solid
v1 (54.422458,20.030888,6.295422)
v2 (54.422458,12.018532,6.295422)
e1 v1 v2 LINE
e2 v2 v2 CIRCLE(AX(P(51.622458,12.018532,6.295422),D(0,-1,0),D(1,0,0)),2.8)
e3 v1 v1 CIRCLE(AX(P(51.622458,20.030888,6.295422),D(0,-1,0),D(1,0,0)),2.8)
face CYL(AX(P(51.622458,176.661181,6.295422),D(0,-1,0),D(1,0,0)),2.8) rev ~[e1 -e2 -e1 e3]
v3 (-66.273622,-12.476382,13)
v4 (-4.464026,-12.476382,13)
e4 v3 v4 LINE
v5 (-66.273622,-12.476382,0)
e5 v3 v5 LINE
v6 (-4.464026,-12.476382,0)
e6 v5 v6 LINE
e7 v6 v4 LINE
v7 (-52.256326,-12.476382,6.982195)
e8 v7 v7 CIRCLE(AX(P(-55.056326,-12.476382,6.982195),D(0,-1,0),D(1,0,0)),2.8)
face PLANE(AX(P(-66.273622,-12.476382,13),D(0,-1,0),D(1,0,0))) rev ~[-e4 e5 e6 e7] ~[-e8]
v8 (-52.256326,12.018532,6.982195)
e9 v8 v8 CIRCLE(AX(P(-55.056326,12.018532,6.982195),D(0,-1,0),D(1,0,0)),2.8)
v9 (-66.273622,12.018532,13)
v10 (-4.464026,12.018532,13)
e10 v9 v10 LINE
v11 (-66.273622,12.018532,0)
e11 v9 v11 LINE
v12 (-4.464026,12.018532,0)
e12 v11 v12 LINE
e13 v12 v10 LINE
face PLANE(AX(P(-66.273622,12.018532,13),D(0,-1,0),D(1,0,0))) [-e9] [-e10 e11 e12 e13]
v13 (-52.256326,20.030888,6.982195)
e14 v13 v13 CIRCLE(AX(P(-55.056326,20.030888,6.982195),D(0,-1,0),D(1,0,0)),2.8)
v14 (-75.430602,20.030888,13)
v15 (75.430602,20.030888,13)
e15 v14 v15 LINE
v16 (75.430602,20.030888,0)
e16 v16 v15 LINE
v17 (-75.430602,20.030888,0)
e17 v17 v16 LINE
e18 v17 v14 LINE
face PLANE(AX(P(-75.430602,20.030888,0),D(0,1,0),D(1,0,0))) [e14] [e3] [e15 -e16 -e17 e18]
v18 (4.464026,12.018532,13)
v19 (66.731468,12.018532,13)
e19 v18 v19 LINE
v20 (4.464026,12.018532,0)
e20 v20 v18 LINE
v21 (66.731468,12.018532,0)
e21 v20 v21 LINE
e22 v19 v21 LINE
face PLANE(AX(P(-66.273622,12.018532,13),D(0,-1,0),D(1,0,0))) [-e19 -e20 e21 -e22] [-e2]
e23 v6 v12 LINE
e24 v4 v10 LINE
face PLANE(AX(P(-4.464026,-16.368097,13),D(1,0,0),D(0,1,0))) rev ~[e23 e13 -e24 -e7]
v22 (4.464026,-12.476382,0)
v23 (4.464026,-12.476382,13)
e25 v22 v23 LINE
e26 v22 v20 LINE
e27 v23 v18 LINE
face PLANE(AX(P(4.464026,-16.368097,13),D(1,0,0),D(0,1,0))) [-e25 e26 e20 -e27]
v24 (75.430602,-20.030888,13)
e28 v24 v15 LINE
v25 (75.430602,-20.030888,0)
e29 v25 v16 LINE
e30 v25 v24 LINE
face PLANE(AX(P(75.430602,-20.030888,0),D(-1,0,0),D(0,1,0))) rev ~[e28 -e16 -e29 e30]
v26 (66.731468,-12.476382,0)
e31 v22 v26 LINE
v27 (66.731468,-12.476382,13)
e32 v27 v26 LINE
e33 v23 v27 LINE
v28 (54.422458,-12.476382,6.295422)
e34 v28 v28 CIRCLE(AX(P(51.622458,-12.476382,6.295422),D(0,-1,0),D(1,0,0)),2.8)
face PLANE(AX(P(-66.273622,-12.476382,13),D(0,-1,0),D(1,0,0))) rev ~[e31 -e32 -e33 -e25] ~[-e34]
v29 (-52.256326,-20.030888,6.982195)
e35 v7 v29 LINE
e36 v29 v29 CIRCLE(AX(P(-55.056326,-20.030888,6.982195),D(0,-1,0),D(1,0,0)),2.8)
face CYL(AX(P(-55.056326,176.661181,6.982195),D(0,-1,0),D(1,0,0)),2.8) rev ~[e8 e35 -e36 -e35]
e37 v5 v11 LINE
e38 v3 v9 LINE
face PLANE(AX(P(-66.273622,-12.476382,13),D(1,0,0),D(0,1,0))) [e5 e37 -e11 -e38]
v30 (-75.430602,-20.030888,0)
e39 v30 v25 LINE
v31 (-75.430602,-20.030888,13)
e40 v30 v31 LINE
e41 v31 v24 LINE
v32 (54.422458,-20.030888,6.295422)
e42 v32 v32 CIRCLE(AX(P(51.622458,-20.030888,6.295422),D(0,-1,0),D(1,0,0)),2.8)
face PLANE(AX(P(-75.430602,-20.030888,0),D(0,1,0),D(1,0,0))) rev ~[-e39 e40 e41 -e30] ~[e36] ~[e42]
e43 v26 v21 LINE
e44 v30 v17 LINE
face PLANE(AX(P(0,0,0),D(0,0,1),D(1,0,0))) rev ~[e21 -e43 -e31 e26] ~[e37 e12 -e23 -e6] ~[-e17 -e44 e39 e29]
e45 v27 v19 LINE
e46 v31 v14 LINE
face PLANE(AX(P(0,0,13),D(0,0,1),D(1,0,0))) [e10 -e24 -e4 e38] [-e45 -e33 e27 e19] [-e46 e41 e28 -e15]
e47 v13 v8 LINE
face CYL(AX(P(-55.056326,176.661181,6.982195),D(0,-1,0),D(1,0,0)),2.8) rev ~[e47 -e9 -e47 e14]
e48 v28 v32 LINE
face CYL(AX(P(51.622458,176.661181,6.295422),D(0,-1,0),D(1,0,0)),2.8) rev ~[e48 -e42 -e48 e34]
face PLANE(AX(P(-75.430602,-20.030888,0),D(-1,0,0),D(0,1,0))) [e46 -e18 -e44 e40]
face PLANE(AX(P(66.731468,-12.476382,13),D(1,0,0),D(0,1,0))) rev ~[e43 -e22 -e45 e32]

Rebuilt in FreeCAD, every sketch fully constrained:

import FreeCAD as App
import Part
import Sketcher
from FreeCAD import Vector
Q = App.Units.Quantity

doc = App.newDocument("Part")
params = doc.addObject("Spreadsheet::Sheet", "Params")
for row, (alias, value) in enumerate([
    ("pad1_length", "13 mm"),
    ("pocket1_length", "25 mm"),
    ("pad2_length", "13 mm"),
    ("sketch4_diameter", "5.6 mm"),
    ("hole_diameter", "5.6 mm"),
], start=1):
    params.set(f"A{row}", alias)
    params.set(f"B{row}", "=" + value)
    params.setAlias(f"B{row}", alias)

body = doc.addObject("PartDesign::Body", "Body")

# Sketch on XY plane
sketch1 = doc.addObject("Sketcher::SketchObject", "Sketch")
body.addObject(sketch1)
sketch1.AttachmentSupport = (doc.XY_Plane, [""])
sketch1.MapMode = "FlatFace"
sketch1.addGeometry(Part.LineSegment(Vector(-75.430602, 20.030888, 0), Vector(-75.430602, -20.030888, 0)), False)
sketch1.addGeometry(Part.LineSegment(Vector(-75.430602, -20.030888, 0), Vector(75.430602, -20.030888, 0)), False)
sketch1.addGeometry(Part.LineSegment(Vector(75.430602, -20.030888, 0), Vector(75.430602, 20.030888, 0)), False)
sketch1.addGeometry(Part.LineSegment(Vector(75.430602, 20.030888, 0), Vector(-75.430602, 20.030888, 0)), False)
sketch1.addConstraint(Sketcher.Constraint("Coincident", 0, 2, 1, 1))
sketch1.addConstraint(Sketcher.Constraint("Coincident", 1, 2, 2, 1))
sketch1.addConstraint(Sketcher.Constraint("Coincident", 2, 2, 3, 1))
sketch1.addConstraint(Sketcher.Constraint("Coincident", 3, 2, 0, 1))
sketch1.addConstraint(Sketcher.Constraint("Vertical", 0))
sketch1.addConstraint(Sketcher.Constraint("Horizontal", 1))
sketch1.addConstraint(Sketcher.Constraint("Vertical", 2))
sketch1.addConstraint(Sketcher.Constraint("Horizontal", 3))
sketch1.addConstraint(Sketcher.Constraint("Symmetric", 0, 2, 2, 2, -1, 1))
sketch1.addConstraint(Sketcher.Constraint("DistanceX", 0, 2, -1, 1, Q("75.430602 mm")))
sketch1.addConstraint(Sketcher.Constraint("DistanceY", 0, 2, 0, 1, Q("40.061776 mm")))
pad1 = doc.addObject("PartDesign::Pad", "Pad")
body.addObject(pad1)
pad1.Profile = sketch1
pad1.setExpression("Length", "Params.pad1_length")

# Sketch on XY plane
sketch2 = doc.addObject("Sketcher::SketchObject", "Sketch001")
body.addObject(sketch2)
sketch2.AttachmentSupport = (doc.XY_Plane, [""])
sketch2.MapMode = "FlatFace"
sketch2.AttachmentOffset = App.Placement(Vector(0, 0, 13), App.Rotation())
sketch2.addGeometry(Part.LineSegment(Vector(-66.273622, 12.018532, 0), Vector(-66.273622, -12.476382, 0)), False)
sketch2.addGeometry(Part.LineSegment(Vector(-66.273622, -12.476382, 0), Vector(66.731468, -12.476382, 0)), False)
sketch2.addGeometry(Part.LineSegment(Vector(66.731468, -12.476382, 0), Vector(66.731468, 12.018532, 0)), False)
sketch2.addGeometry(Part.LineSegment(Vector(66.731468, 12.018532, 0), Vector(-66.273622, 12.018532, 0)), False)
sketch2.addConstraint(Sketcher.Constraint("Coincident", 0, 2, 1, 1))
sketch2.addConstraint(Sketcher.Constraint("Coincident", 1, 2, 2, 1))
sketch2.addConstraint(Sketcher.Constraint("Coincident", 2, 2, 3, 1))
sketch2.addConstraint(Sketcher.Constraint("Coincident", 3, 2, 0, 1))
sketch2.addConstraint(Sketcher.Constraint("Vertical", 0))
sketch2.addConstraint(Sketcher.Constraint("Horizontal", 1))
sketch2.addConstraint(Sketcher.Constraint("Vertical", 2))
sketch2.addConstraint(Sketcher.Constraint("Horizontal", 3))
sketch2.addConstraint(Sketcher.Constraint("DistanceX", 1, 1, 1, 2, Q("133.00509 mm")))
sketch2.addConstraint(Sketcher.Constraint("DistanceY", 0, 2, 0, 1, Q("24.494914 mm")))
sketch2.addConstraint(Sketcher.Constraint("DistanceY", 0, 2, -1, 1, Q("12.476382 mm")))
sketch2.addConstraint(Sketcher.Constraint("DistanceX", -1, 1, 1, 2, Q("66.731468 mm")))
pocket1 = doc.addObject("PartDesign::Pocket", "Pocket")
body.addObject(pocket1)
pocket1.Profile = sketch2
pocket1.setExpression("Length", "Params.pocket1_length")

# Sketch on XY plane
sketch3 = doc.addObject("Sketcher::SketchObject", "Sketch002")
body.addObject(sketch3)
sketch3.AttachmentSupport = (doc.XY_Plane, [""])
sketch3.MapMode = "FlatFace"
sketch3.AttachmentOffset = App.Placement(Vector(0, 0, 13), App.Rotation())
sketch3.addGeometry(Part.LineSegment(Vector(-4.464026, 16.368097, 0), Vector(-4.464026, -16.368097, 0)), False)
sketch3.addGeometry(Part.LineSegment(Vector(-4.464026, -16.368097, 0), Vector(4.464026, -16.368097, 0)), False)
sketch3.addGeometry(Part.LineSegment(Vector(4.464026, -16.368097, 0), Vector(4.464026, 16.368097, 0)), False)
sketch3.addGeometry(Part.LineSegment(Vector(4.464026, 16.368097, 0), Vector(-4.464026, 16.368097, 0)), False)
sketch3.addConstraint(Sketcher.Constraint("Coincident", 0, 2, 1, 1))
sketch3.addConstraint(Sketcher.Constraint("Coincident", 1, 2, 2, 1))
sketch3.addConstraint(Sketcher.Constraint("Coincident", 2, 2, 3, 1))
sketch3.addConstraint(Sketcher.Constraint("Coincident", 3, 2, 0, 1))
sketch3.addConstraint(Sketcher.Constraint("Vertical", 0))
sketch3.addConstraint(Sketcher.Constraint("Horizontal", 1))
sketch3.addConstraint(Sketcher.Constraint("Vertical", 2))
sketch3.addConstraint(Sketcher.Constraint("Horizontal", 3))
sketch3.addConstraint(Sketcher.Constraint("Symmetric", 0, 2, 2, 2, -1, 1))
sketch3.addConstraint(Sketcher.Constraint("DistanceX", 1, 1, 1, 2, Q("8.928052 mm")))
sketch3.addConstraint(Sketcher.Constraint("DistanceY", 0, 2, 0, 1, Q("32.736194 mm")))
pad2 = doc.addObject("PartDesign::Pad", "Pad001")
body.addObject(pad2)
pad2.Profile = sketch3
pad2.setExpression("Length", "Params.pad2_length")
pad2.Reversed = True

# Sketch on XZ plane
sketch4 = doc.addObject("Sketcher::SketchObject", "Sketch003")
body.addObject(sketch4)
sketch4.AttachmentSupport = (doc.XZ_Plane, [""])
sketch4.MapMode = "FlatFace"
sketch4.AttachmentOffset = App.Placement(Vector(0, 0, -20.030888), App.Rotation())
sketch4.addGeometry(Part.Circle(Vector(-55.056326, 6.982195, 0), Vector(0, 0, 1), 2.8), False)
sketch4.addGeometry(Part.Circle(Vector(51.622458, 6.295422, 0), Vector(0, 0, 1), 2.8), False)
sketch4.addConstraint(Sketcher.Constraint("Equal", 0, 1))
sketch4.addConstraint(Sketcher.Constraint("Diameter", 0, Q("5.6 mm")))
sketch4.addConstraint(Sketcher.Constraint("DistanceX", -1, 1, 1, 3, Q("51.622458 mm")))
sketch4.addConstraint(Sketcher.Constraint("DistanceX", 0, 3, -1, 1, Q("55.056326 mm")))
sketch4.addConstraint(Sketcher.Constraint("DistanceY", -1, 1, 0, 3, Q("6.982195 mm")))
sketch4.addConstraint(Sketcher.Constraint("DistanceY", -1, 1, 1, 3, Q("6.295422 mm")))
sketch4.setExpression("Constraints[1]", "Params.sketch4_diameter")
doc.recompute()
hole = doc.addObject("PartDesign::Hole", "Hole")
body.addObject(hole)
hole.Profile = sketch4
hole.ThreadType = "None"
hole.setExpression("Diameter", "Params.hole_diameter")
hole.DepthType = "ThroughAll"
hole.Reversed = True

doc.recompute()
